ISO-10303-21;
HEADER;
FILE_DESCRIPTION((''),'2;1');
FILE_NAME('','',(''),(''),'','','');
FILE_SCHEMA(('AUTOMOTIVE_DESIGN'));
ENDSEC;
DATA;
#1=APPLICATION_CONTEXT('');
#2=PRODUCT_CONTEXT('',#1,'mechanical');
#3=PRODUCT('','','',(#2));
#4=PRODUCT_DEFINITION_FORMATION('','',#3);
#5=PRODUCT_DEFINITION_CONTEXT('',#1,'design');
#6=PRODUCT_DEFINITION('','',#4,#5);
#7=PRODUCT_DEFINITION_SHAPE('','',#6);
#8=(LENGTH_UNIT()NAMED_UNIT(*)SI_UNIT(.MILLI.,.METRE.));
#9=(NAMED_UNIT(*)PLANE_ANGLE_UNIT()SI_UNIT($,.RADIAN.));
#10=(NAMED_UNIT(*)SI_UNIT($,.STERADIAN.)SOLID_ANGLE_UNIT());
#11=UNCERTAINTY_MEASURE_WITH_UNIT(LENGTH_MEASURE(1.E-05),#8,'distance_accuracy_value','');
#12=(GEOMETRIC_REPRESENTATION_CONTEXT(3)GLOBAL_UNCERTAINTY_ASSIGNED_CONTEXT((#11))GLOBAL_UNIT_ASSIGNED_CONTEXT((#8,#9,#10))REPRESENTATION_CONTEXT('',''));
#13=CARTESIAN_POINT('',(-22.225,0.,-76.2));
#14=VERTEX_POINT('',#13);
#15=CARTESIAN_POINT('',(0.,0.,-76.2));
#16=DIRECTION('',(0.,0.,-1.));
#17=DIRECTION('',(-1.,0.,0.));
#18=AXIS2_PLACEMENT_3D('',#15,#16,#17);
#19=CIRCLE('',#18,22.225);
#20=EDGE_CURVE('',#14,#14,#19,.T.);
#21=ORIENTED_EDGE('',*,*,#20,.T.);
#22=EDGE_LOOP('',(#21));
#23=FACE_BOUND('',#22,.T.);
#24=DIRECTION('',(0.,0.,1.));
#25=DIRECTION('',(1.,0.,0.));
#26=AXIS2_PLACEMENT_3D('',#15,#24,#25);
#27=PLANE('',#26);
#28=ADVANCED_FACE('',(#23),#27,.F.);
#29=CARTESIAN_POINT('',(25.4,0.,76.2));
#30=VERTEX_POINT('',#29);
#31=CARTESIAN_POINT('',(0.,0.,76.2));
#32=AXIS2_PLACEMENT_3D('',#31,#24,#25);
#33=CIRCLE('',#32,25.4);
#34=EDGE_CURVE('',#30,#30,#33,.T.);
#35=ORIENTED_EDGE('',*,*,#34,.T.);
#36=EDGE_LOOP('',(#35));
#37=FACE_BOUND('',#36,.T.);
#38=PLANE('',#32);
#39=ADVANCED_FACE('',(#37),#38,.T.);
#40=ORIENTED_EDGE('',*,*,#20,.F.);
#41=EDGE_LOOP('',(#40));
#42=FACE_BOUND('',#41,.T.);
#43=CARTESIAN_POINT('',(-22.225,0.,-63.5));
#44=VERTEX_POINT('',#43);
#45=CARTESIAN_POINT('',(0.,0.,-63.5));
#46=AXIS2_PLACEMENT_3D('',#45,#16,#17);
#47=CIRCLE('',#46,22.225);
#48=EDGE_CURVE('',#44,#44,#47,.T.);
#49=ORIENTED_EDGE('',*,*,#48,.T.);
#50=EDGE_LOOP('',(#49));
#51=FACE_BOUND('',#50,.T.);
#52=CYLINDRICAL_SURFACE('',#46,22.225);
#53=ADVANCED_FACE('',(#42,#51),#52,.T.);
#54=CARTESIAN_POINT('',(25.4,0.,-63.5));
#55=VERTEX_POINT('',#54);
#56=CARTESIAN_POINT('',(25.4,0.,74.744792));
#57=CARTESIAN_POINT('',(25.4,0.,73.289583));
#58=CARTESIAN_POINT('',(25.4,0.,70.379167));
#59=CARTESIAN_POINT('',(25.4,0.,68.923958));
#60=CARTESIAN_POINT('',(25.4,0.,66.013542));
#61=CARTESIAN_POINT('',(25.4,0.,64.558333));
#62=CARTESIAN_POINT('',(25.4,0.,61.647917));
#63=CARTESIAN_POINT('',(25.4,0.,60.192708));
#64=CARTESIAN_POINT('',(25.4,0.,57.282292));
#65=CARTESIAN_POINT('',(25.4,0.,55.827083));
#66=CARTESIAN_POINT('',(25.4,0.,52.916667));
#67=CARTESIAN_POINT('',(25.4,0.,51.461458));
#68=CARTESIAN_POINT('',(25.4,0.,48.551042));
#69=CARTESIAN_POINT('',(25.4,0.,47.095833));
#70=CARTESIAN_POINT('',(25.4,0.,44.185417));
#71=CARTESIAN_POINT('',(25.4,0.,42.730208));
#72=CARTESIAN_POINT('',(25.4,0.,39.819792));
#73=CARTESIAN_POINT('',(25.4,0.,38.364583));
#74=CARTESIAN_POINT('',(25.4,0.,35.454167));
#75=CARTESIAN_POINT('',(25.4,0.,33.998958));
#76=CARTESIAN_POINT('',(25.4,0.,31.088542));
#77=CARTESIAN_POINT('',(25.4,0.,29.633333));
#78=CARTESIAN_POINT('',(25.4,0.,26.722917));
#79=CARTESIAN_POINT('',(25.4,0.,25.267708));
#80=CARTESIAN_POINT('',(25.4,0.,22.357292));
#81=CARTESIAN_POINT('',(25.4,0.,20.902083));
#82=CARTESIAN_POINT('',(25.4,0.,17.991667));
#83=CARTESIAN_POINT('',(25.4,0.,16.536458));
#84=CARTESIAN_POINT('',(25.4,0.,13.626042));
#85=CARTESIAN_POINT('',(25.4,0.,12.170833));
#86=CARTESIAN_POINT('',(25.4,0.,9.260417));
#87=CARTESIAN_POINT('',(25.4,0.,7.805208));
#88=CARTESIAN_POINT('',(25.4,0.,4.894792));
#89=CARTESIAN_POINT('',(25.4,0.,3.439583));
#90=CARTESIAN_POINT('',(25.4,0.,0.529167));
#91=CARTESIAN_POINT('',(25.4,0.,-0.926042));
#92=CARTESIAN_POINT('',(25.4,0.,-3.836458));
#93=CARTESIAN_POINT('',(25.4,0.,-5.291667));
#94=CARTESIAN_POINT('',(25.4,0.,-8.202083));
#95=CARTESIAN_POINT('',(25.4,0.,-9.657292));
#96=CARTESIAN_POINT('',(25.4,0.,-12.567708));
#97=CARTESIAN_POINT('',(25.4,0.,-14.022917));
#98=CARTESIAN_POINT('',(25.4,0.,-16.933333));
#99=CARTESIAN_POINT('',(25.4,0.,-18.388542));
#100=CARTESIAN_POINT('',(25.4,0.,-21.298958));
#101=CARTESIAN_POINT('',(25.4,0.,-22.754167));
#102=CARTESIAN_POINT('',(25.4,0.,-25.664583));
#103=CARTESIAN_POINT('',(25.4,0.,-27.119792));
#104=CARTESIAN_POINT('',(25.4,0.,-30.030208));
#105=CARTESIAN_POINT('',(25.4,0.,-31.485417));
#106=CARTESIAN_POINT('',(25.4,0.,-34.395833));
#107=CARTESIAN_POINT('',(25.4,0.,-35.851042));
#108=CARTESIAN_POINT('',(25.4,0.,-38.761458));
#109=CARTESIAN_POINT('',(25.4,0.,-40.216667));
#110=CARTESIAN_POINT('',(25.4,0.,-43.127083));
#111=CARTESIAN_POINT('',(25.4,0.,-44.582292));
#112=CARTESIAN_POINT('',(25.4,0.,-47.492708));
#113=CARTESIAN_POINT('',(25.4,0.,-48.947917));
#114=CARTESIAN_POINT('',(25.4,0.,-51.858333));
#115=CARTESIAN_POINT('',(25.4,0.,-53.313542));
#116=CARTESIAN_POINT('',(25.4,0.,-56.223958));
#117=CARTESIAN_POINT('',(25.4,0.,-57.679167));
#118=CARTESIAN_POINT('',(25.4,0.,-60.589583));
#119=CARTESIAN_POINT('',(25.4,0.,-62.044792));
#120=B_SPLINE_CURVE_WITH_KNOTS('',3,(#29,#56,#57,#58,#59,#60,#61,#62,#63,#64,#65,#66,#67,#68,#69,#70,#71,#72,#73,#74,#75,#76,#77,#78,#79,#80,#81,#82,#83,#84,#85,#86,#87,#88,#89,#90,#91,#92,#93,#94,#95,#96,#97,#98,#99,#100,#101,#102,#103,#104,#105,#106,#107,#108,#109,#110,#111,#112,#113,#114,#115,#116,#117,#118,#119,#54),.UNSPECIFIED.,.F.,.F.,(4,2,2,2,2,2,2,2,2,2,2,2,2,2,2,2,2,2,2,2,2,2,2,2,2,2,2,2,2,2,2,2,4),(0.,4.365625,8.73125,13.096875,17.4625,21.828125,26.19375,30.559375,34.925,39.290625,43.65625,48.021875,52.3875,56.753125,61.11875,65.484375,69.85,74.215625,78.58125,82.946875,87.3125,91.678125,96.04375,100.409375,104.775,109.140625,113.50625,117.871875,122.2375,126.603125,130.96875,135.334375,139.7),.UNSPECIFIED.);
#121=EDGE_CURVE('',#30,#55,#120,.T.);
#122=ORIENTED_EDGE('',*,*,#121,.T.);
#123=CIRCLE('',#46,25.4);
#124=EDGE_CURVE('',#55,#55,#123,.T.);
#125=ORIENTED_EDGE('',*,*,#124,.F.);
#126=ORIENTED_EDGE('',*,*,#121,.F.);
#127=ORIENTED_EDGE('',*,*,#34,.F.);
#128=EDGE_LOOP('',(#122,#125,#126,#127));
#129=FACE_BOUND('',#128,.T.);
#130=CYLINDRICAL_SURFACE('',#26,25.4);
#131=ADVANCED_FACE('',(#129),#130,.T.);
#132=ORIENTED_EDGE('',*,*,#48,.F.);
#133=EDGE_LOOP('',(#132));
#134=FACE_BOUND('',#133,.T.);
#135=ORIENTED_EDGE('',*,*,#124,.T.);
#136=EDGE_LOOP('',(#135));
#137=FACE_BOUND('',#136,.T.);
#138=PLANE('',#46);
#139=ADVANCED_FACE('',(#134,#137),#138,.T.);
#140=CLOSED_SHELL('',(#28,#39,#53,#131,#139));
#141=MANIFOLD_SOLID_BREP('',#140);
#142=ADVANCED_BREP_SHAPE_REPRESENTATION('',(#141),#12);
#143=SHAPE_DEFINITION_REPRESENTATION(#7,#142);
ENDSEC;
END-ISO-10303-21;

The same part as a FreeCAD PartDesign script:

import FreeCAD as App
import Part
import Sketcher

V = App.Vector
Q = App.Units.Quantity

doc = App.newDocument("Part")
params = doc.addObject("Spreadsheet::Sheet", "Params")
for row, (alias, value) in enumerate([
    ("sketch1_diameter", "2 in"),
    ("pad1_length", "6 in"),
    ("sketch2_diameter", "2 in"),
    ("sketch2_diameter2", "1.75 in"),
    ("pocket1_length", "0.5 in"),
], start=1):
    params.set(f"A{row}", alias)
    params.set(f"B{row}", "=" + value)
    params.setAlias(f"B{row}", alias)

body = doc.addObject("PartDesign::Body", "Body")

# Sketch on XY plane
sketch1 = body.newObject("Sketcher::SketchObject", "Sketch")
sketch1.AttachmentSupport = (doc.getObject("XY_Plane"), [""])
sketch1.MapMode = "FlatFace"
sketch1.AttachmentOffset = App.Placement(V(0, 0, 3 * 25.4), App.Rotation())
sketch1.addGeometry(Part.Circle(V(0, 0, 0), V(0, 0, 1), 25.4), False)
sketch1.addConstraint([
    Sketcher.Constraint("Coincident", 0, 3, -1, 1),
    Sketcher.Constraint("Diameter", 0, Q("2 in")),
])
sketch1.setExpression("Constraints[1]", "Params.sketch1_diameter")
pad1 = body.newObject("PartDesign::Pad", "Pad")
pad1.Profile = sketch1
pad1.setExpression("Length", "Params.pad1_length")
pad1.Reversed = True

# Sketch on XY plane
sketch2 = body.newObject("Sketcher::SketchObject", "Sketch001")
sketch2.AttachmentSupport = (doc.getObject("XY_Plane"), [""])
sketch2.MapMode = "FlatFace"
sketch2.AttachmentOffset = App.Placement(V(0, 0, -2.5 * 25.4), App.Rotation())
sketch2.addGeometry([
    Part.Circle(V(0, 0, 0), V(0, 0, 1), 25.4),
    Part.Circle(V(0, 0, 0), V(0, 0, 1), 22.225),
], False)
sketch2.addConstraint([
    Sketcher.Constraint("Coincident", 0, 3, -1, 1),
    Sketcher.Constraint("Coincident", 1, 3, -1, 1),
    Sketcher.Constraint("Diameter", 0, Q("2 in")),
    Sketcher.Constraint("Diameter", 1, Q("1.75 in")),
])
sketch2.setExpression("Constraints[2]", "Params.sketch2_diameter")
sketch2.setExpression("Constraints[3]", "Params.sketch2_diameter2")
pocket1 = body.newObject("PartDesign::Pocket", "Pocket")
pocket1.Profile = sketch2
pocket1.setExpression("Length", "Params.pocket1_length")

doc.recompute()
